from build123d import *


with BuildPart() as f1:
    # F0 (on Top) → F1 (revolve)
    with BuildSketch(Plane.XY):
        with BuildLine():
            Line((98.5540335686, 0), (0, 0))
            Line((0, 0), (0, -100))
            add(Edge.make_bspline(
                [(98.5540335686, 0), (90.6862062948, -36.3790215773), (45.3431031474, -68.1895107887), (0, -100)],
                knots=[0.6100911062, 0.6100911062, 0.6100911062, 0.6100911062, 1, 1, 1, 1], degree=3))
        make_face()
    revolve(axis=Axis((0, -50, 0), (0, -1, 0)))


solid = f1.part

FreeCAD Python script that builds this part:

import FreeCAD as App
import Part
import Sketcher
from FreeCAD import Vector

doc = App.newDocument("Part")
params = doc.addObject("Spreadsheet::Sheet", "Params")
for row, (alias, value) in enumerate([
    ("revolution_angle", "360 deg"),
], start=1):
    params.set(f"A{row}", alias)
    params.set(f"B{row}", "=" + value)
    params.setAlias(f"B{row}", alias)

body = doc.addObject("PartDesign::Body", "Body")

sketch1 = body.newObject("Sketcher::SketchObject", "Sketch")
sketch1.AttachmentSupport = (doc.getObject("XY_Plane"), [""])
sketch1.MapMode = "FlatFace"
sketch1.addGeometry(Part.LineSegment(Vector(98.554034, 0, 0), Vector(0, 0, 0)), False)
sketch1.addGeometry(Part.LineSegment(Vector(0, 0, 0), Vector(0, -100, 0)), False)
sketch1.addGeometry(Part.BSplineCurve([Vector(98.554034, 0, 0), Vector(90.686206, -36.379022, 0), Vector(45.343103, -68.189511, 0), Vector(0, -100, 0)], [4, 4], [0.610091106, 1], False, 3, [1, 1, 1, 1], False), False)
sketch1.addConstraint(Sketcher.Constraint("Block", 2))
sketch1.addConstraint(Sketcher.Constraint("Coincident", 0, 2, 1, 1))
sketch1.addConstraint(Sketcher.Constraint("Coincident", 1, 2, 2, 2))
sketch1.addConstraint(Sketcher.Constraint("Coincident", 2, 1, 0, 1))
sketch1.addConstraint(Sketcher.Constraint("Horizontal", 0))
sketch1.addConstraint(Sketcher.Constraint("Vertical", 1))
revolution = body.newObject("PartDesign::Revolution", "Revolution")
revolution.Profile = sketch1
revolution.ReferenceAxis = (sketch1, ["V_Axis"])
revolution.setExpression("Angle", "Params.revolution_angle")

doc.recompute()
